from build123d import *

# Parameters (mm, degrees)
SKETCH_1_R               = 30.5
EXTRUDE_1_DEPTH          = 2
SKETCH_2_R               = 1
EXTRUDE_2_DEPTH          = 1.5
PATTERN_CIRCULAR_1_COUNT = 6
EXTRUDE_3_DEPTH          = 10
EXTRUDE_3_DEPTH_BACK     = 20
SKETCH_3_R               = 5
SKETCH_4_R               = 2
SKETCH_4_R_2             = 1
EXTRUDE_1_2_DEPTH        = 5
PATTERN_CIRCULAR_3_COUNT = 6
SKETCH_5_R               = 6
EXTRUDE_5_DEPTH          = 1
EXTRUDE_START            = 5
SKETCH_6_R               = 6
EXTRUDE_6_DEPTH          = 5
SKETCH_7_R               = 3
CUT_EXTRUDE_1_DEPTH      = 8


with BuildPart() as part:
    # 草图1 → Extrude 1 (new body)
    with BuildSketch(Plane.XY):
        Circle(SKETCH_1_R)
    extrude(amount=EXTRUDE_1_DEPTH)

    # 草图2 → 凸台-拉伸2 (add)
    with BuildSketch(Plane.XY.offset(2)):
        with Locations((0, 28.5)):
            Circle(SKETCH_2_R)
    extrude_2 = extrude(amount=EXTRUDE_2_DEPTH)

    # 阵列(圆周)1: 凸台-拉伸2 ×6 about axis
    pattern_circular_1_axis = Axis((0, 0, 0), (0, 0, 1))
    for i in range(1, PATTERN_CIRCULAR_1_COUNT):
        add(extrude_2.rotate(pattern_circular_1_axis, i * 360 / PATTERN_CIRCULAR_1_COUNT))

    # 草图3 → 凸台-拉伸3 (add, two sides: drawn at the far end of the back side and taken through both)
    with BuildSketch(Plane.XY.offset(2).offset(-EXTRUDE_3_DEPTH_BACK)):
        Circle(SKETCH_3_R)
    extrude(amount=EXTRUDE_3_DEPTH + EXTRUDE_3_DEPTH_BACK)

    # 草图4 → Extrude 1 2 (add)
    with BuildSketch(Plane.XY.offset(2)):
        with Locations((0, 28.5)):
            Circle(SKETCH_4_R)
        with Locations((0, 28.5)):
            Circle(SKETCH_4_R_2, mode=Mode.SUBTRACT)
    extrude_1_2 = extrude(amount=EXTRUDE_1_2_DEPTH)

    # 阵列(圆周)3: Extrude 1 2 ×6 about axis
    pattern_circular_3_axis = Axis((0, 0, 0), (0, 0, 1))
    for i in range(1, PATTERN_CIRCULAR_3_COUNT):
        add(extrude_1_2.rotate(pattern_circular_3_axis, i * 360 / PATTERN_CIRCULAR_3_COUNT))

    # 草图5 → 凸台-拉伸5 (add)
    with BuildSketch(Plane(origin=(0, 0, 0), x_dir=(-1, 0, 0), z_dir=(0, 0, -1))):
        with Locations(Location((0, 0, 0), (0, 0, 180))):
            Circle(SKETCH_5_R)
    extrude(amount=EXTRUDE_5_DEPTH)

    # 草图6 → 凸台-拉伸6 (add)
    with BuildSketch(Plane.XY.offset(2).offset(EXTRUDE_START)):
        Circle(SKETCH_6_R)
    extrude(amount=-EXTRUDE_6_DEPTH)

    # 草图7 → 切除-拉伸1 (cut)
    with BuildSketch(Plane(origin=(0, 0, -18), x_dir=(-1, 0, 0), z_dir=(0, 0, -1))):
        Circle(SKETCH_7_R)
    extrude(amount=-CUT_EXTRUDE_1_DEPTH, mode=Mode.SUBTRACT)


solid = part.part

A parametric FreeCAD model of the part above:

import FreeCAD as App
import Part
import Sketcher
from FreeCAD import Vector

doc = App.newDocument("Part")
params = doc.addObject("Spreadsheet::Sheet", "Params")
for row, (alias, value) in enumerate([
    ("sketch1_diameter", "61 mm"),
    ("pad1_length", "2 mm"),
    ("sketch2_diameter", "2 mm"),
    ("pad2_length", "1.5 mm"),
    ("sketch3_diameter", "10 mm"),
    ("pad3_length", "10 mm"),
    ("pad3_length2", "20 mm"),
    ("sketch4_diameter", "4 mm"),
    ("sketch4_diameter2", "2 mm"),
    ("pad4_length", "5 mm"),
    ("sketch5_diameter", "12 mm"),
    ("pad5_length", "1 mm"),
    ("sketch6_diameter", "12 mm"),
    ("pad6_length", "5 mm"),
    ("sketch7_diameter", "6 mm"),
    ("pocket1_length", "8 mm"),
], start=1):
    params.set(f"A{row}", alias)
    params.set(f"B{row}", "=" + value)
    params.setAlias(f"B{row}", alias)

body = doc.addObject("PartDesign::Body", "Body")

sketch1 = body.newObject("Sketcher::SketchObject", "Sketch")
sketch1.AttachmentSupport = (doc.getObject("XY_Plane"), [""])
sketch1.MapMode = "FlatFace"
sketch1.addGeometry(Part.Circle(Vector(0, 0, 0), Vector(0, 0, 1), 30), False)
sketch1.addConstraint([
    Sketcher.Constraint("Coincident", 0, 3, -1, 1),
    Sketcher.Constraint("Diameter", 0, 61.0),
])
sketch1.setExpression("Constraints[1]", "Params.sketch1_diameter")
pad1 = body.newObject("PartDesign::Pad", "Pad")
pad1.Profile = sketch1
pad1.setExpression("Length", "Params.pad1_length")

sketch2 = body.newObject("Sketcher::SketchObject", "Sketch001")
sketch2.AttachmentSupport = (doc.getObject("XY_Plane"), [""])
sketch2.MapMode = "FlatFace"
sketch2.AttachmentOffset = App.Placement(Vector(0, 0, 2), App.Rotation())
sketch2.addGeometry(Part.Circle(Vector(0, 28.5, 0), Vector(0, 0, 1), 1), False)
sketch2.addConstraint([
    Sketcher.Constraint("PointOnObject", 0, 3, -2),
    Sketcher.Constraint("Diameter", 0, 2.0),
    Sketcher.Constraint("DistanceY", -1, 1, 0, 3, 28.5),
])
sketch2.setExpression("Constraints[1]", "Params.sketch2_diameter")
pad2 = body.newObject("PartDesign::Pad", "Pad001")
pad2.Profile = sketch2
pad2.setExpression("Length", "Params.pad2_length")
doc.recompute()

polarpattern = body.newObject("PartDesign::PolarPattern", "PolarPattern")
polarpattern.Originals = [pad2]
polarpattern.Axis = (doc.getObject("Z_Axis"), [""])
polarpattern.Angle = 360
polarpattern.Occurrences = 6
body.Tip = polarpattern

sketch3 = body.newObject("Sketcher::SketchObject", "Sketch002")
sketch3.AttachmentSupport = (doc.getObject("XY_Plane"), [""])
sketch3.MapMode = "FlatFace"
sketch3.AttachmentOffset = App.Placement(Vector(0, 0, 2), App.Rotation())
sketch3.addGeometry(Part.Circle(Vector(0, 0, 0), Vector(0, 0, 1), 5), False)
sketch3.addConstraint([
    Sketcher.Constraint("Coincident", 0, 3, -1, 1),
    Sketcher.Constraint("Diameter", 0, 10.0),
])
sketch3.setExpression("Constraints[1]", "Params.sketch3_diameter")
pad3 = body.newObject("PartDesign::Pad", "Pad002")
pad3.Profile = sketch3
pad3.Type = "TwoLengths"
pad3.setExpression("Length", "Params.pad3_length")
pad3.setExpression("Length2", "Params.pad3_length2")

sketch4 = body.newObject("Sketcher::SketchObject", "Sketch003")
sketch4.AttachmentSupport = (doc.getObject("XY_Plane"), [""])
sketch4.MapMode = "FlatFace"
sketch4.AttachmentOffset = App.Placement(Vector(0, 0, 2), App.Rotation())
sketch4.addGeometry([
    Part.Circle(Vector(0, 28.5, 0), Vector(0, 0, 1), 2),
    Part.Circle(Vector(0, 28.5, 0), Vector(0, 0, 1), 1),
], False)
sketch4.addConstraint([
    Sketcher.Constraint("Coincident", 1, 3, 0, 3),
    Sketcher.Constraint("PointOnObject", 0, 3, -2),
    Sketcher.Constraint("Diameter", 0, 4.0),
    Sketcher.Constraint("Diameter", 1, 2.0),
    Sketcher.Constraint("DistanceY", -1, 1, 0, 3, 28.5),
])
sketch4.setExpression("Constraints[2]", "Params.sketch4_diameter")
sketch4.setExpression("Constraints[3]", "Params.sketch4_diameter2")
pad4 = body.newObject("PartDesign::Pad", "Pad003")
pad4.Profile = sketch4
pad4.setExpression("Length", "Params.pad4_length")
doc.recompute()

polarpattern2 = body.newObject("PartDesign::PolarPattern", "PolarPattern001")
polarpattern2.Originals = [pad4]
polarpattern2.Axis = (doc.getObject("Z_Axis"), [""])
polarpattern2.Angle = 360
polarpattern2.Occurrences = 6
body.Tip = polarpattern2

sketch5 = body.newObject("Sketcher::SketchObject", "Sketch004")
sketch5.AttachmentSupport = (doc.getObject("XY_Plane"), [""])
sketch5.MapMode = "FlatFace"
sketch5.addGeometry(Part.Circle(Vector(0, 0, 0), Vector(0, 0, 1), 6), False)
sketch5.addConstraint([
    Sketcher.Constraint("Coincident", 0, 3, -1, 1),
    Sketcher.Constraint("Diameter", 0, 12.0),
])
sketch5.setExpression("Constraints[1]", "Params.sketch5_diameter")
pad5 = body.newObject("PartDesign::Pad", "Pad004")
pad5.Profile = sketch5
pad5.setExpression("Length", "Params.pad5_length")
pad5.Reversed = True

sketch6 = body.newObject("Sketcher::SketchObject", "Sketch005")
sketch6.AttachmentSupport = (doc.getObject("XY_Plane"), [""])
sketch6.MapMode = "FlatFace"
sketch6.AttachmentOffset = App.Placement(Vector(0, 0, 7), App.Rotation())
sketch6.addGeometry(Part.Circle(Vector(0, 0, 0), Vector(0, 0, 1), 6), False)
sketch6.addConstraint([
    Sketcher.Constraint("Coincident", 0, 3, -1, 1),
    Sketcher.Constraint("Diameter", 0, 12.0),
])
sketch6.setExpression("Constraints[1]", "Params.sketch6_diameter")
pad6 = body.newObject("PartDesign::Pad", "Pad005")
pad6.Profile = sketch6
pad6.setExpression("Length", "Params.pad6_length")
pad6.Reversed = True

sketch7 = body.newObject("Sketcher::SketchObject", "Sketch006")
sketch7.AttachmentSupport = (doc.getObject("XY_Plane"), [""])
sketch7.MapMode = "FlatFace"
sketch7.AttachmentOffset = App.Placement(Vector(0, 0, -18), App.Rotation())
sketch7.addGeometry(Part.Circle(Vector(0, 0, 0), Vector(0, 0, 1), 3), False)
sketch7.addConstraint([
    Sketcher.Constraint("Coincident", 0, 3, -1, 1),
    Sketcher.Constraint("Diameter", 0, 6.0),
])
sketch7.setExpression("Constraints[1]", "Params.sketch7_diameter")
pocket1 = body.newObject("PartDesign::Pocket", "Pocket")
pocket1.Profile = sketch7
pocket1.setExpression("Length", "Params.pocket1_length")
pocket1.Reversed = True

doc.recompute()
